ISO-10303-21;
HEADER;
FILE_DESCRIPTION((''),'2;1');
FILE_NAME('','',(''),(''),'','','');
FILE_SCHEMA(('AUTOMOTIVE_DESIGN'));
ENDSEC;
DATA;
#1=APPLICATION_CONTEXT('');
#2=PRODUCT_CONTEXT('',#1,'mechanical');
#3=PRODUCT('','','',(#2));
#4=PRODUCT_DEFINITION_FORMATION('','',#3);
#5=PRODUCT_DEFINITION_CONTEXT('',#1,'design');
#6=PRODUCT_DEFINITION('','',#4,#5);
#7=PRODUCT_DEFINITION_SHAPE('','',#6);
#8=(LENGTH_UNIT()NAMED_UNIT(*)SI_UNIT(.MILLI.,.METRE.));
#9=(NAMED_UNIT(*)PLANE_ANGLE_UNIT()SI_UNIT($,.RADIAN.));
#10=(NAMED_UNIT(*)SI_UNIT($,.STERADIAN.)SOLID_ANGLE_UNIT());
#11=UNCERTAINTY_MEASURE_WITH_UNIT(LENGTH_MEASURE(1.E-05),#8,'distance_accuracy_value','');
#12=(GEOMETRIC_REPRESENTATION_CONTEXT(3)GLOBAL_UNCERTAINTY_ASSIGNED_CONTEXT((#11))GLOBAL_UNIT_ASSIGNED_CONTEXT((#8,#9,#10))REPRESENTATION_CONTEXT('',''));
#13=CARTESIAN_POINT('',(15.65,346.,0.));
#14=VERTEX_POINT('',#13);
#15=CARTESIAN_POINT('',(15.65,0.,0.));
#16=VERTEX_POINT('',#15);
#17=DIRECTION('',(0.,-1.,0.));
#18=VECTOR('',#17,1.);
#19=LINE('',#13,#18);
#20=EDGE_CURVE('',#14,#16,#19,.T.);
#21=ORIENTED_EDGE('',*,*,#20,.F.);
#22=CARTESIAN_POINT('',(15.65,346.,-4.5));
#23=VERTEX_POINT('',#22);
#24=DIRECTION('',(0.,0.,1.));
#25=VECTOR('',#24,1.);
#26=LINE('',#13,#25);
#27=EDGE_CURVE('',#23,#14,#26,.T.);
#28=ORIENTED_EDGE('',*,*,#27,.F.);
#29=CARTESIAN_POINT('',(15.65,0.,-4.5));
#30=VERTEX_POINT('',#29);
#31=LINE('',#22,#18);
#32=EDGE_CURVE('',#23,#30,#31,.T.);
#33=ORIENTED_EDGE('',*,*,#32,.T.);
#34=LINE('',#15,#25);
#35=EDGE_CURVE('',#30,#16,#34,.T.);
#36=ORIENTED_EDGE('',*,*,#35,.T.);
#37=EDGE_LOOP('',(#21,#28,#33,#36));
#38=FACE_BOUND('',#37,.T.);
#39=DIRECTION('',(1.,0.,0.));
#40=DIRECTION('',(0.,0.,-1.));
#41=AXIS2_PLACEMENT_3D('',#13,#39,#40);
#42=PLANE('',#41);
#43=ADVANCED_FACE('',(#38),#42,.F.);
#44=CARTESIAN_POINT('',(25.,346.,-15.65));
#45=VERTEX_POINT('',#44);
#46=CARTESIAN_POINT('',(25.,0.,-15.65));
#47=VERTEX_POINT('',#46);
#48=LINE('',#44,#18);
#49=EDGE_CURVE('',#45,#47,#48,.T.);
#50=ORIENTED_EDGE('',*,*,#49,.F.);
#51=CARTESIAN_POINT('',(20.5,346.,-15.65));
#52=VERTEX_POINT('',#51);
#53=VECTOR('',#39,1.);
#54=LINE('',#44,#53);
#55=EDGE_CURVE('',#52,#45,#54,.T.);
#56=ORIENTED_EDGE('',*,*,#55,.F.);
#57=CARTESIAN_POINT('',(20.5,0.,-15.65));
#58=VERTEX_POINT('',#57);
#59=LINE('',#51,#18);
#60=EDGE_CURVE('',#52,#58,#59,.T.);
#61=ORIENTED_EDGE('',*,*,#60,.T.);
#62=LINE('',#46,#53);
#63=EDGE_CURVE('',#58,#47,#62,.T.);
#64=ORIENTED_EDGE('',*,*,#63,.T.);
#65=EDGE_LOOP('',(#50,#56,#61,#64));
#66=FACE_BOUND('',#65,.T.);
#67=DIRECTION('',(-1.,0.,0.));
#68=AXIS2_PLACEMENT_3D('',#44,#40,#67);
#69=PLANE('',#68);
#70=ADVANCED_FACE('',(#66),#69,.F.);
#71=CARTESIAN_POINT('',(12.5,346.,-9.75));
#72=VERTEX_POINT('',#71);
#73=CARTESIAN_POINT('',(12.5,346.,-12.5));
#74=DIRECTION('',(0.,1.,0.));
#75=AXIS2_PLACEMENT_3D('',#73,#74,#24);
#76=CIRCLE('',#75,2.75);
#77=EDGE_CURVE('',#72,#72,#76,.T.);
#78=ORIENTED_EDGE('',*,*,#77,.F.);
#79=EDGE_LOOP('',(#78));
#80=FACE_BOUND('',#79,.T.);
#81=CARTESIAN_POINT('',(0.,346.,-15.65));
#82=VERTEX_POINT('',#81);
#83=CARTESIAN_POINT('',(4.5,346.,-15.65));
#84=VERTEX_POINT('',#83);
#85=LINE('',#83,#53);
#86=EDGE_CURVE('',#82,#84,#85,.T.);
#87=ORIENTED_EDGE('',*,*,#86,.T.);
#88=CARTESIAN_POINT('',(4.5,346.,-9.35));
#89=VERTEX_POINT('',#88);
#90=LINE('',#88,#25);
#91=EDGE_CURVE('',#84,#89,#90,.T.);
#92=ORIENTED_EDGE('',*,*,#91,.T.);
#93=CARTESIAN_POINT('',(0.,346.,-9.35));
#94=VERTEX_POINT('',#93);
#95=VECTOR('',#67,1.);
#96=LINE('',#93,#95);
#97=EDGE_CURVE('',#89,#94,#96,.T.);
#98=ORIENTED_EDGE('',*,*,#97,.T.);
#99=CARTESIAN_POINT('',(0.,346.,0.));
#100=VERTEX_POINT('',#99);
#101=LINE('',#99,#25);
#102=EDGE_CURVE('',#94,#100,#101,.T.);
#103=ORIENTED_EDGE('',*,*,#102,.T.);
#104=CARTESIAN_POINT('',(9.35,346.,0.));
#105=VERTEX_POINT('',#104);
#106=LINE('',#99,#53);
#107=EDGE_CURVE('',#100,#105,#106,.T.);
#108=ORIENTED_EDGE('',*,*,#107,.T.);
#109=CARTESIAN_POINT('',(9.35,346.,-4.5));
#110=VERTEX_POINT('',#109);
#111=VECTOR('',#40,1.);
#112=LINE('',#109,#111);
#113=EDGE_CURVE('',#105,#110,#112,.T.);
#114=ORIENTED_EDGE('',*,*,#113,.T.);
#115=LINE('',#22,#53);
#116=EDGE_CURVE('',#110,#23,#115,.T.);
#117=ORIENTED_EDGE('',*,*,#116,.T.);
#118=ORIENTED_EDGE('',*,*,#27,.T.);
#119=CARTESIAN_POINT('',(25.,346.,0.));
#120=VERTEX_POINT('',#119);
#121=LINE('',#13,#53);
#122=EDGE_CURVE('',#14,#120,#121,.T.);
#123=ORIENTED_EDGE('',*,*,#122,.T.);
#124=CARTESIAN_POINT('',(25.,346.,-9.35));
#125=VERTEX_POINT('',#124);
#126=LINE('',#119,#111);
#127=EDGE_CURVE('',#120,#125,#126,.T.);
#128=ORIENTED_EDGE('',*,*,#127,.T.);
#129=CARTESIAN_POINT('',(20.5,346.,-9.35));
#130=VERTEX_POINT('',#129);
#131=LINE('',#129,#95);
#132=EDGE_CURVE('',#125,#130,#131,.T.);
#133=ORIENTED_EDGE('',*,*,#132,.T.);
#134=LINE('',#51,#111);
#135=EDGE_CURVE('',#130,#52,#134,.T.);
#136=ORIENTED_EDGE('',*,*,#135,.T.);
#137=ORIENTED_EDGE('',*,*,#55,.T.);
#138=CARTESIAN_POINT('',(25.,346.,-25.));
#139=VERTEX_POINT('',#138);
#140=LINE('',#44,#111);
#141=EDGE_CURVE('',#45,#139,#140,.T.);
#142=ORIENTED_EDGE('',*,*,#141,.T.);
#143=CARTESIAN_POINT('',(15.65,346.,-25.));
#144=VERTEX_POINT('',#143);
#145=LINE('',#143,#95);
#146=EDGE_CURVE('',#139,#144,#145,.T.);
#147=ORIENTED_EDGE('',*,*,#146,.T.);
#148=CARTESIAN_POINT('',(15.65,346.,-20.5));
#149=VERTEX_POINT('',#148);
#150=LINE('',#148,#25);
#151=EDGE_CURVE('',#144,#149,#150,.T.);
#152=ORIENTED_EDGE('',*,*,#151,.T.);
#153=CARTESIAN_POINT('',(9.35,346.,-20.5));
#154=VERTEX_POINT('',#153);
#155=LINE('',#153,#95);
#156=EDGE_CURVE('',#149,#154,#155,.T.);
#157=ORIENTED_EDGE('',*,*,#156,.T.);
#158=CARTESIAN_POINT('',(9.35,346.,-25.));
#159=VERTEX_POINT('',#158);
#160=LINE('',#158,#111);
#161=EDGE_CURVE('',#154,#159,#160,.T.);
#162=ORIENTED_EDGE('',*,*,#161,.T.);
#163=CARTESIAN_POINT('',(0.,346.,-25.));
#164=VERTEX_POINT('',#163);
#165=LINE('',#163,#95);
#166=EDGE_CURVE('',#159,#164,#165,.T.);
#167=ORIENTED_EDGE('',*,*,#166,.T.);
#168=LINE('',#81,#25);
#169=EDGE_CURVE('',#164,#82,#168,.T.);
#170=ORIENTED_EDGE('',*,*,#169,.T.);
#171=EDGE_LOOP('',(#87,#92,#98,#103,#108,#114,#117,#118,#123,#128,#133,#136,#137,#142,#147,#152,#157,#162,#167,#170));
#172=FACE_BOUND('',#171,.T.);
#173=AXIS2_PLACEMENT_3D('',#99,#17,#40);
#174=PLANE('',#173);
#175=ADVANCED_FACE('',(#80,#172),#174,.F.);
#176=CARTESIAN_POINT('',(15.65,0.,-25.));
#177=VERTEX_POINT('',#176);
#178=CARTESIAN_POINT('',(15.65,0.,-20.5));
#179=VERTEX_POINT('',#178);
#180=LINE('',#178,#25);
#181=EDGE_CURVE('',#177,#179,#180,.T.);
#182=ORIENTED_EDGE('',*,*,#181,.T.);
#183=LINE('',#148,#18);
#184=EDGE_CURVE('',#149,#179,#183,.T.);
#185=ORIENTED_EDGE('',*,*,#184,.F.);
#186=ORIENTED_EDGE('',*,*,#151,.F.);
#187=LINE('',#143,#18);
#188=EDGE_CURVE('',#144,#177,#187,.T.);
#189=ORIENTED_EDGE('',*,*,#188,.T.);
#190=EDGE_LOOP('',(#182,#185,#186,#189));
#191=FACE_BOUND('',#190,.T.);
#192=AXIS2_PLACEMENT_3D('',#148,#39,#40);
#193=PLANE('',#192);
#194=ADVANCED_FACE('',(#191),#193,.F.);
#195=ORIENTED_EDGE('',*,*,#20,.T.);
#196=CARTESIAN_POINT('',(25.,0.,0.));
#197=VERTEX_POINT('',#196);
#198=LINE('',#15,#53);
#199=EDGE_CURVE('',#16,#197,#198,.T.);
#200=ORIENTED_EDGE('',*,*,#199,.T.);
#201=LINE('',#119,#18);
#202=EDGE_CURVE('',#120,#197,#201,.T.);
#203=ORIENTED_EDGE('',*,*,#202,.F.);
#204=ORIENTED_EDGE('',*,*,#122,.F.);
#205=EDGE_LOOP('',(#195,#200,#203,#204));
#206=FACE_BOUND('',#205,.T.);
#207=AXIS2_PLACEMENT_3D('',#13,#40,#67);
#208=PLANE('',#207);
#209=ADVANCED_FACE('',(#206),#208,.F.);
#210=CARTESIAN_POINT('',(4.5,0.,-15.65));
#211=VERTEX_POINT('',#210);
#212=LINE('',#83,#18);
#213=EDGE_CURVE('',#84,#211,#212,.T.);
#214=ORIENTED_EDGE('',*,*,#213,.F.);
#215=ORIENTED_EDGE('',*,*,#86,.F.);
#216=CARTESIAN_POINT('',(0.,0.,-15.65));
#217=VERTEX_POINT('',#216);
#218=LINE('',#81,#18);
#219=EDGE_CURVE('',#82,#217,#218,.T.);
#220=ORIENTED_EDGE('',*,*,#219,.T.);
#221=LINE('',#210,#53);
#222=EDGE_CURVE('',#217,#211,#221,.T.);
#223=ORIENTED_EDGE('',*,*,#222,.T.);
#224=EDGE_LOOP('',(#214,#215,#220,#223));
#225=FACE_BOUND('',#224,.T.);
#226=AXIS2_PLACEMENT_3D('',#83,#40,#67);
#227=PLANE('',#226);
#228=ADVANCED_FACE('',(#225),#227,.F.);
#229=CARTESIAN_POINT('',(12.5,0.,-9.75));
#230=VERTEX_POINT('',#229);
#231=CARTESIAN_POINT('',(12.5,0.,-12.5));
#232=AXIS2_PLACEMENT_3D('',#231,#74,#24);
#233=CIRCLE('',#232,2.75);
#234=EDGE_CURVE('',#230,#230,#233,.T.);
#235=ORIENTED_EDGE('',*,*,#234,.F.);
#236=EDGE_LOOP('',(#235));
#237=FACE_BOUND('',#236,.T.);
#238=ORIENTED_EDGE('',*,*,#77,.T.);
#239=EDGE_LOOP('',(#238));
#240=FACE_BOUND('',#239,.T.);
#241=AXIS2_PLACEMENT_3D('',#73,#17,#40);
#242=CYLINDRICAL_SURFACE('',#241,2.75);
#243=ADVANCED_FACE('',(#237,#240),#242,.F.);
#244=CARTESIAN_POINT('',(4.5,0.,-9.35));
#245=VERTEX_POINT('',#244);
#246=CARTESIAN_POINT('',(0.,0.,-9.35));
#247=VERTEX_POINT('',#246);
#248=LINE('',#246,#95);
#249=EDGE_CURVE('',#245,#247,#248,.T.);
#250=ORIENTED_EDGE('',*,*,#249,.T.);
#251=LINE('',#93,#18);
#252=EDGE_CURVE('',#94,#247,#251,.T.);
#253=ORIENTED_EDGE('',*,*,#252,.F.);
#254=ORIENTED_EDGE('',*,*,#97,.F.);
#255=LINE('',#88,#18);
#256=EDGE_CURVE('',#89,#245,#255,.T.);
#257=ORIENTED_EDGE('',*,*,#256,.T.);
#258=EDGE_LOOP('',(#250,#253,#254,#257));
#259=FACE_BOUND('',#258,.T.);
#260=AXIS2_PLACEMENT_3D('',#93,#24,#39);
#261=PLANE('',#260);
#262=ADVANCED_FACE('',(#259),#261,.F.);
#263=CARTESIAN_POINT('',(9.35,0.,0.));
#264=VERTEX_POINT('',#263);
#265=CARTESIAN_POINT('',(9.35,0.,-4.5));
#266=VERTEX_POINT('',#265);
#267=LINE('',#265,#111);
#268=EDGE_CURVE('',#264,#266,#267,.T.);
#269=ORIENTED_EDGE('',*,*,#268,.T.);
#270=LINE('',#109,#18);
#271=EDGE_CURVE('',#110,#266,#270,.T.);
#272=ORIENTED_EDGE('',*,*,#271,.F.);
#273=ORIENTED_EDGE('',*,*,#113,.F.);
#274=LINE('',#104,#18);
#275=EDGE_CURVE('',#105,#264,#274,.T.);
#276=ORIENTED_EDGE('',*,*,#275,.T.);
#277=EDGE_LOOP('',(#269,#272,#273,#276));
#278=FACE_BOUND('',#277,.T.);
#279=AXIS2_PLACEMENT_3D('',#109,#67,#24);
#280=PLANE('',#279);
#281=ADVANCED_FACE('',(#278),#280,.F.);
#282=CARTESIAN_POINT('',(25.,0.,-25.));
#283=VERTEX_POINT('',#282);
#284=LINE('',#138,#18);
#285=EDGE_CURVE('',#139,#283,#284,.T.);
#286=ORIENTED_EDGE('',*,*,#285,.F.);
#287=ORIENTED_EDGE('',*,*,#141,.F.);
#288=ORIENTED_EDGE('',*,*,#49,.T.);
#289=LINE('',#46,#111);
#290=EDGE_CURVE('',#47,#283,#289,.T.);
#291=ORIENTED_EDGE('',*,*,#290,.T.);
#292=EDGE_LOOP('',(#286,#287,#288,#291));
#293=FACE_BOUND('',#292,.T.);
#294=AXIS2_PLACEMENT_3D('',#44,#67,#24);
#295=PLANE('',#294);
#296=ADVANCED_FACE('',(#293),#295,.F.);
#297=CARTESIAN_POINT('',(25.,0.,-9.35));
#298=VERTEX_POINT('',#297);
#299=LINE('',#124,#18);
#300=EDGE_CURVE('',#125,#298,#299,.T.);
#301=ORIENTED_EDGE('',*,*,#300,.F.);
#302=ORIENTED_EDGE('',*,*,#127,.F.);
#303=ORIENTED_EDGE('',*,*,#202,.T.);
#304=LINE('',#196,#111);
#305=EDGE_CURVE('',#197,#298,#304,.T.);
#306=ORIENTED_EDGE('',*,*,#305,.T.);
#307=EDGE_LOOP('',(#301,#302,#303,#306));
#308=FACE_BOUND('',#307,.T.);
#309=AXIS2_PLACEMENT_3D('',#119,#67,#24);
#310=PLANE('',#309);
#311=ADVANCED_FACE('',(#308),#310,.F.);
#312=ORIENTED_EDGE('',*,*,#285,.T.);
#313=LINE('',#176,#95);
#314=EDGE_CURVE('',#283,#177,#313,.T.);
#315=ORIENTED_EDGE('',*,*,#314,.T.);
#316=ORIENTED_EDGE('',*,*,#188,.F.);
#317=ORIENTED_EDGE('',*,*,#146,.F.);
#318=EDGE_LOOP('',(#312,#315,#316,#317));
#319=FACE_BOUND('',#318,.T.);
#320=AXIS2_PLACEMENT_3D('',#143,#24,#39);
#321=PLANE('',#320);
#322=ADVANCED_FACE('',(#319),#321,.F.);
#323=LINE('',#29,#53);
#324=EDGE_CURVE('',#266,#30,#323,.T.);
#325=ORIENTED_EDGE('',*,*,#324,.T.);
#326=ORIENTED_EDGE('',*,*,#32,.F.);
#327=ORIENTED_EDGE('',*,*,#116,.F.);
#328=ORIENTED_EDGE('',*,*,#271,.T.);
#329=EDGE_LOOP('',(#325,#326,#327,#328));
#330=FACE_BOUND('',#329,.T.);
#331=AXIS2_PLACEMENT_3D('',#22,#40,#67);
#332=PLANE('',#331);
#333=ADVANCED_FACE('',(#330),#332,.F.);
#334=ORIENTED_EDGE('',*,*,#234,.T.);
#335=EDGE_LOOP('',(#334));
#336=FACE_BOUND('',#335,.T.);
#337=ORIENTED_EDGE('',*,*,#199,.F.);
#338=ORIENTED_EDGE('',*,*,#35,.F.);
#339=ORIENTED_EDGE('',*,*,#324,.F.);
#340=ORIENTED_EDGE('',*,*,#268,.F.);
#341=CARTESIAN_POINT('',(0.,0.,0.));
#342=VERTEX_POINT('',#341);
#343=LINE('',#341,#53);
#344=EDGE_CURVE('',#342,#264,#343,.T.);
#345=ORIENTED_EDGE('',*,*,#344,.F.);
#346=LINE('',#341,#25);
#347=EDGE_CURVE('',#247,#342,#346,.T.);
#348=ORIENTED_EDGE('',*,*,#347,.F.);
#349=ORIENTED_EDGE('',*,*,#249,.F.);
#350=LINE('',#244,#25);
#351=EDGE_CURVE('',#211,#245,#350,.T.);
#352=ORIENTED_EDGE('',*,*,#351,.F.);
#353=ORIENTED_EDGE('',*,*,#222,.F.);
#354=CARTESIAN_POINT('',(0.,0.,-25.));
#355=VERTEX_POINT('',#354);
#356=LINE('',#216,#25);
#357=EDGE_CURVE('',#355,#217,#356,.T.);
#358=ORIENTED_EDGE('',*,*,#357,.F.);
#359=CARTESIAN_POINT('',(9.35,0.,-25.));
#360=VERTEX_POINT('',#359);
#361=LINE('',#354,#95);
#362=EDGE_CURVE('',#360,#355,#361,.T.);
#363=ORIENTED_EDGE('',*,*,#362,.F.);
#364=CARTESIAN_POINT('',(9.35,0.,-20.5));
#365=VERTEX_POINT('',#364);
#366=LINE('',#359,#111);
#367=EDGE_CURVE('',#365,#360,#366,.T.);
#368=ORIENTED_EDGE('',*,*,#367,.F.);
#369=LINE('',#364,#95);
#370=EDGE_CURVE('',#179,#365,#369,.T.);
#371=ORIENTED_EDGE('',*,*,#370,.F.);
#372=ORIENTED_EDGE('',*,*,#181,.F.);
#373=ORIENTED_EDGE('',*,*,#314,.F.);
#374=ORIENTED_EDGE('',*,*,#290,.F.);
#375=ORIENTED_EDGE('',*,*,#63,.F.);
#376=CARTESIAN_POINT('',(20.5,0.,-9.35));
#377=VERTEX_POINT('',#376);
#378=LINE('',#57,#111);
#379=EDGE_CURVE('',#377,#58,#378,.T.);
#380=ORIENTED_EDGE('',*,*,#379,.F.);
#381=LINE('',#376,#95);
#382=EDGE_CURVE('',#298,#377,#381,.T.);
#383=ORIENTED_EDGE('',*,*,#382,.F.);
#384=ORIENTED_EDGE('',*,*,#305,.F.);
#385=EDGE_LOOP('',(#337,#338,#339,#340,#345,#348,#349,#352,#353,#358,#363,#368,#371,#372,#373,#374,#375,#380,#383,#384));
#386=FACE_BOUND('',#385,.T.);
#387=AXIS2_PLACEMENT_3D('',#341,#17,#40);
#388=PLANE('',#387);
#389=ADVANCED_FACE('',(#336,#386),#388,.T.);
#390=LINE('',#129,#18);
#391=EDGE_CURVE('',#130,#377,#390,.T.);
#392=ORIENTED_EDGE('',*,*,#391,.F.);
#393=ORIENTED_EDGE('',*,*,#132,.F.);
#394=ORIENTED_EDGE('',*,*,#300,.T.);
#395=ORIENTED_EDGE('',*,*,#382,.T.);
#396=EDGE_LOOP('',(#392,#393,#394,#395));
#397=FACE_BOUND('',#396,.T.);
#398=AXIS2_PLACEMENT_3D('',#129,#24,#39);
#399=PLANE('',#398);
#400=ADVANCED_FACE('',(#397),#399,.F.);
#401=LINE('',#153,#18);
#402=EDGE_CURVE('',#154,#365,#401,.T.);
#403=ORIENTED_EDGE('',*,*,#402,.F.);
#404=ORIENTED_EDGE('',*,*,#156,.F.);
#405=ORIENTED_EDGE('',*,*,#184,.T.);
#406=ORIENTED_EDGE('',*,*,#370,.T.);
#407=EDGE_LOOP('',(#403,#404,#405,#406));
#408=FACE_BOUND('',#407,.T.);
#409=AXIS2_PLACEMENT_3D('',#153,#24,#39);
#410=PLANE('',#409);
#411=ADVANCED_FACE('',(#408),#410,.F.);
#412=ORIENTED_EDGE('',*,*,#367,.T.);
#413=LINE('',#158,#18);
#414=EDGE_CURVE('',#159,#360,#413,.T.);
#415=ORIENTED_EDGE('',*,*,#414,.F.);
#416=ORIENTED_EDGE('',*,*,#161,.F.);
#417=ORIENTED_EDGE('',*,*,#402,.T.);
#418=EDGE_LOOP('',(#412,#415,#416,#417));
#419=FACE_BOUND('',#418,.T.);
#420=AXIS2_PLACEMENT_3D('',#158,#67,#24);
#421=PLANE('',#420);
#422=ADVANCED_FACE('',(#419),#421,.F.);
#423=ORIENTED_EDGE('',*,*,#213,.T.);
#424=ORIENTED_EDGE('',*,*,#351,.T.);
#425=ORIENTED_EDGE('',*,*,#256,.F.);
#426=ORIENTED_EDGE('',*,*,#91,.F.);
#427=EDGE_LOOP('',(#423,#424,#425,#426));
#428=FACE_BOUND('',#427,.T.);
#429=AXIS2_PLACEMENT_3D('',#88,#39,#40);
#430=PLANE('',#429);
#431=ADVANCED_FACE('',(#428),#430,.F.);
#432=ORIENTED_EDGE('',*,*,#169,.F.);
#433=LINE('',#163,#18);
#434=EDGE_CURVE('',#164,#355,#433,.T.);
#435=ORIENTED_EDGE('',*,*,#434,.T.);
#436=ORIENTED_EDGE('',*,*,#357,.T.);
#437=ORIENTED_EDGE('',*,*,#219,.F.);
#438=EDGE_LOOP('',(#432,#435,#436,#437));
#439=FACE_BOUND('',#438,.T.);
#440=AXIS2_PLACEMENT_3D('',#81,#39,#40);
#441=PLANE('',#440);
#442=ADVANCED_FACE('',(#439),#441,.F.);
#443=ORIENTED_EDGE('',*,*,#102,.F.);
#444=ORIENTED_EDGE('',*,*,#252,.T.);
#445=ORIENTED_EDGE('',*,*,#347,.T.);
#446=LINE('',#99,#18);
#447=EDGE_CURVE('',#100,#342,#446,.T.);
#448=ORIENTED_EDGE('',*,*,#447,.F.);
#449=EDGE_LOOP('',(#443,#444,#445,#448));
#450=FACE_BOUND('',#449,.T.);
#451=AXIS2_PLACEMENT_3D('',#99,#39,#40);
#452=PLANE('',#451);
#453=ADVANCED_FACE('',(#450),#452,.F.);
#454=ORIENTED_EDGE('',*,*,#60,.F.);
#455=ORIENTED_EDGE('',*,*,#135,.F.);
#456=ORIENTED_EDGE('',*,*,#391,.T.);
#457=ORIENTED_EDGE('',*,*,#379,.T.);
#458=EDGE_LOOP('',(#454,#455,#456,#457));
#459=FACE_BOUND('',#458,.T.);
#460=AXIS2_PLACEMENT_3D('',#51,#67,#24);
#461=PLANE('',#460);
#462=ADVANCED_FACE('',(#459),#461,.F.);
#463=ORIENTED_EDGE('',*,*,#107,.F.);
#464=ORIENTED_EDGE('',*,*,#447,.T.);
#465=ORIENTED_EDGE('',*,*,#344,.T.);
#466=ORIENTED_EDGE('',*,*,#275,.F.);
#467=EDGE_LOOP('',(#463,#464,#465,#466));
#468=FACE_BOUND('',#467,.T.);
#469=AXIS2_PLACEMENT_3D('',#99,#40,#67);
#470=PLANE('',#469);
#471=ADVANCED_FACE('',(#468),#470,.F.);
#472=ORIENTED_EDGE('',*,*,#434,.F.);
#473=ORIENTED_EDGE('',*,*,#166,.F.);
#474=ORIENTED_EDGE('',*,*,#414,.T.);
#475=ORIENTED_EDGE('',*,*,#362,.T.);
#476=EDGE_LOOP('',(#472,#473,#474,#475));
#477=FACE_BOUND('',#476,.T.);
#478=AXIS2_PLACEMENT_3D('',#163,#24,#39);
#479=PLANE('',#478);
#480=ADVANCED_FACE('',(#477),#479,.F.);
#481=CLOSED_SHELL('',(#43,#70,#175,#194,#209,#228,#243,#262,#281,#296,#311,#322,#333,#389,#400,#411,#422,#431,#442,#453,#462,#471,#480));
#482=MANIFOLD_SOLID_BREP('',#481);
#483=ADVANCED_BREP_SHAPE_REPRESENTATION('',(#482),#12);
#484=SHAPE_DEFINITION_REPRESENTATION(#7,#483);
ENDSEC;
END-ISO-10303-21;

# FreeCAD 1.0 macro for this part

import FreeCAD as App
import Part
import Sketcher
from FreeCAD import Vector


def add_polygon(sketch, points):
    """Adds a closed chain of lines whose ends are joined by coincident constraints."""
    first, n = sketch.GeometryCount, len(points)
    for a, b in zip(points, points[1:] + points[:1]):
        sketch.addGeometry(Part.LineSegment(App.Vector(*a, 0), App.Vector(*b, 0)), False)
    for i in range(n):
        sketch.addConstraint(Sketcher.Constraint("Coincident", first + i, 2, first + (i + 1) % n, 1))

doc = App.newDocument("Part")
body = doc.addObject("PartDesign::Body", "Body")

# Sketch on XZ plane
sketch1 = body.newObject("Sketcher::SketchObject", "Sketch")
sketch1.AttachmentSupport = (doc.getObject("XZ_Plane"), [""])
sketch1.MapMode = "FlatFace"
add_polygon(sketch1, [(9.3, -20.5), (9.3, -25), (0, -25), (0, -15.7), (4.5, -15.7), (4.5, -9.3), (0, -9.3), (0, 0), (9.3, 0), (9.3, -4.5), (15.7, -4.5), (15.7, 0), (25, 0), (25, -9.3), (20.5, -9.3), (20.5, -15.7), (25, -15.7), (25, -25), (15.7, -25), (15.7, -20.5)])  # lines 0-19
sketch1.addGeometry(Part.Circle(Vector(12.5, -12.5, 0), Vector(0, 0, 1), 2.8), False)  # 20
sketch1.addConstraint([
    Sketcher.Constraint("Vertical", 0),
    Sketcher.Constraint("Horizontal", 1),
    Sketcher.Constraint("Vertical", 2),
    Sketcher.Constraint("Horizontal", 3),
    Sketcher.Constraint("Vertical", 4),
    Sketcher.Constraint("Horizontal", 5),
    Sketcher.Constraint("Vertical", 6),
    Sketcher.Constraint("Horizontal", 7),
    Sketcher.Constraint("Vertical", 8),
    Sketcher.Constraint("Horizontal", 9),
    Sketcher.Constraint("Vertical", 10),
    Sketcher.Constraint("Horizontal", 11),
    Sketcher.Constraint("Vertical", 12),
    Sketcher.Constraint("Horizontal", 13),
    Sketcher.Constraint("Vertical", 14),
    Sketcher.Constraint("Horizontal", 15),
    Sketcher.Constraint("Vertical", 16),
    Sketcher.Constraint("Horizontal", 17),
    Sketcher.Constraint("Vertical", 18),
    Sketcher.Constraint("Horizontal", 19),
    Sketcher.Constraint("Coincident", 6, 2, -1, 1),
    Sketcher.Constraint("PointOnObject", 1, 2, -2),
    Sketcher.Constraint("PointOnObject", 10, 2, -1),
    Sketcher.Constraint("Horizontal", 5, 2, 12, 2),
    Sketcher.Constraint("Horizontal", 3, 2, 14, 2),
    Sketcher.Constraint("Horizontal", 1, 2, 16, 2),
    Sketcher.Constraint("Vertical", 0, 2, 7, 2),
    Sketcher.Constraint("Vertical", 12, 2, 15, 2),
    Sketcher.Constraint("Vertical", 10, 2, 17, 2),
    Sketcher.Constraint("Equal", 7, 11),
    Sketcher.Constraint("Equal", 5, 13),
    Sketcher.Constraint("Equal", 15, 0),
    Sketcher.Constraint("Equal", 17, 2),
    Sketcher.Constraint("Equal", 19, 4),
    Sketcher.Constraint("Equal", 2, 6),
    Sketcher.Constraint("Equal", 0, 8),
    Sketcher.Constraint("Diameter", 20, 5.5),
    Sketcher.Constraint("DistanceX", 3, 1, 3, 2, 4.5),
    Sketcher.Constraint("DistanceX", 9, 1, 9, 2, 6.3),
    Sketcher.Constraint("DistanceY", 0, 2, -1, 1, 25.0),
    Sketcher.Constraint("DistanceX", 3, 2, 20, 3, 8.0),
    Sketcher.Constraint("DistanceY", 20, 3, 8, 2, 8.0),
])
pad1 = body.newObject("PartDesign::Pad", "Pad")
pad1.Profile = sketch1
pad1.Length = 346
pad1.Reversed = True

doc.recompute()
